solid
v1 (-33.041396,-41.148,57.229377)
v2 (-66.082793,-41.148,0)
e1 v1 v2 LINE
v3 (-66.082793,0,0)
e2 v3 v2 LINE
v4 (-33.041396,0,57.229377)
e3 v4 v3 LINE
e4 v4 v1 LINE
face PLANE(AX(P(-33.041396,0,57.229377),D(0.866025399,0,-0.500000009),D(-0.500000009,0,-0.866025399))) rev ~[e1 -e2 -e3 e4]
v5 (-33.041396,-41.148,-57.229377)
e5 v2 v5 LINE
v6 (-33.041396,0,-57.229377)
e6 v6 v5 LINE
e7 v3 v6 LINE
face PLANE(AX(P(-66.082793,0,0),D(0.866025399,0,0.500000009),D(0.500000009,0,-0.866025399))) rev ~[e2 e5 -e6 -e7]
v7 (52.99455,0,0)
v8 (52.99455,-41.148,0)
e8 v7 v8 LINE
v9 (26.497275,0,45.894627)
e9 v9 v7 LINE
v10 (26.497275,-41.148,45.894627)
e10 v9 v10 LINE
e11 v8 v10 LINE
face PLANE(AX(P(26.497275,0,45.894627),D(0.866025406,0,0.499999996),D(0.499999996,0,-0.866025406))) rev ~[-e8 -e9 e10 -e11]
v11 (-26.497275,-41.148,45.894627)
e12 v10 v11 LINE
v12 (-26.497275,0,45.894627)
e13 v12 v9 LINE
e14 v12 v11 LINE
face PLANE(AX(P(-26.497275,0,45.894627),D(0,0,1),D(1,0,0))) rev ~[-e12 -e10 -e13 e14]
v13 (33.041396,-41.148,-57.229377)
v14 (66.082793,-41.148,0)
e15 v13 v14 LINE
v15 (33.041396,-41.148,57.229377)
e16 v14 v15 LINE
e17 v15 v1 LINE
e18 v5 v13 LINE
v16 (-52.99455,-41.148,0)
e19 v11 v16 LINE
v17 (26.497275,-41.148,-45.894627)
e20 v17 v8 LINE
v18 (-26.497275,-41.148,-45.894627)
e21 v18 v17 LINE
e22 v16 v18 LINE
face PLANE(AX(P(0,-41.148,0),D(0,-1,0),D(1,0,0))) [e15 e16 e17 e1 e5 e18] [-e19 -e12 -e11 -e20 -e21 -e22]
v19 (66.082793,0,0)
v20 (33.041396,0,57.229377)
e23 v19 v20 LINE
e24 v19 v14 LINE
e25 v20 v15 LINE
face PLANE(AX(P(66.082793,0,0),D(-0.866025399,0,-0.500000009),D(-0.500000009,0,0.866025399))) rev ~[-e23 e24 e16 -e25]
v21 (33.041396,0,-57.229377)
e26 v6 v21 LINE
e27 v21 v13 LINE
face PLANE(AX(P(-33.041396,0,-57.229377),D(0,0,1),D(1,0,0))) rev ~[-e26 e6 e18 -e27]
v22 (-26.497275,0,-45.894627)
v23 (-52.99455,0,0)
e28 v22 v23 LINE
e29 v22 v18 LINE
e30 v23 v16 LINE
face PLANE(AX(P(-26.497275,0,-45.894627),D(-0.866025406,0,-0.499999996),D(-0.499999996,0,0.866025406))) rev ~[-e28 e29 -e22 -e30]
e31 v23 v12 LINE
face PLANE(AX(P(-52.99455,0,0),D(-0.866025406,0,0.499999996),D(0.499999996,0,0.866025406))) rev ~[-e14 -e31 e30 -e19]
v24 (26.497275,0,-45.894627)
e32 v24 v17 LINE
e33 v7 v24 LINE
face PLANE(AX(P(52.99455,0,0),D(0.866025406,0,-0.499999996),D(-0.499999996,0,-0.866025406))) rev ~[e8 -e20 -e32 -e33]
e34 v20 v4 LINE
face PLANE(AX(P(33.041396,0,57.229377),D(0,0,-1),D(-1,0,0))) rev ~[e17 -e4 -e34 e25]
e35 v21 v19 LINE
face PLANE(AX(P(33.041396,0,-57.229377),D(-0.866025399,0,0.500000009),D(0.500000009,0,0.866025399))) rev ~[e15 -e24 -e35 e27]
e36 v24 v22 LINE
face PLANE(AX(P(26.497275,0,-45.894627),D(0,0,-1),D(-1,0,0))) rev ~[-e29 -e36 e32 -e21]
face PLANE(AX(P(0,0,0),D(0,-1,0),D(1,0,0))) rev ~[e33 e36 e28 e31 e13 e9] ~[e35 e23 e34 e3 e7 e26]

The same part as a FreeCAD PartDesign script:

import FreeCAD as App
import Part
import Sketcher
Q = App.Units.Quantity

doc = App.newDocument("Part")
body = doc.addObject("PartDesign::Body", "Body")

# Sketch on XZ plane
sketch1 = body.newObject("Sketcher::SketchObject", "Sketch")
sketch1.AttachmentSupport = (doc.getObject("XZ_Plane"), [""])
sketch1.MapMode = "FlatFace"
sketch1.addGeometry(Part.LineSegment(App.Vector(33, 57, 0), App.Vector(-33, 57, 0)), False)
sketch1.addGeometry(Part.LineSegment(App.Vector(-33, 57, 0), App.Vector(-66, 0, 0)), False)
sketch1.addGeometry(Part.LineSegment(App.Vector(-66, 0, 0), App.Vector(-33, -57, 0)), False)
sketch1.addGeometry(Part.LineSegment(App.Vector(-33, -57, 0), App.Vector(33, -57, 0)), False)
sketch1.addGeometry(Part.LineSegment(App.Vector(33, -57, 0), App.Vector(66, 0, 0)), False)
sketch1.addGeometry(Part.LineSegment(App.Vector(66, 0, 0), App.Vector(33, 57, 0)), False)
sketch1.addConstraint(Sketcher.Constraint("Coincident", 0, 2, 1, 1))
sketch1.addConstraint(Sketcher.Constraint("Coincident", 1, 2, 2, 1))
sketch1.addConstraint(Sketcher.Constraint("Coincident", 2, 2, 3, 1))
sketch1.addConstraint(Sketcher.Constraint("Coincident", 3, 2, 4, 1))
sketch1.addConstraint(Sketcher.Constraint("Coincident", 4, 2, 5, 1))
sketch1.addConstraint(Sketcher.Constraint("Coincident", 5, 2, 0, 1))
sketch1.addConstraint(Sketcher.Constraint("Horizontal", 0))
sketch1.addConstraint(Sketcher.Constraint("Horizontal", 3))
sketch1.addConstraint(Sketcher.Constraint("Symmetric", 0, 2, 3, 2, -1, 1))
sketch1.addConstraint(Sketcher.Constraint("Symmetric", 1, 2, 4, 2, -1, 1))
sketch1.addConstraint(Sketcher.Constraint("PointOnObject", 1, 2, -1))
sketch1.addConstraint(Sketcher.Constraint("Parallel", 2, 5))
sketch1.addConstraint(Sketcher.Constraint("Vertical", 0, 2, 2, 2))
sketch1.addConstraint(Sketcher.Constraint("Angle", 1, Q("-120.000001 deg")))
sketch1.addConstraint(Sketcher.Constraint("DistanceX", 0, 2, 0, 1, Q("66.082792 mm")))
sketch1.addConstraint(Sketcher.Constraint("DistanceX", 1, 2, 3, 2, Q("99.124189 mm")))
pad1 = body.newObject("PartDesign::Pad", "Pad")
pad1.Profile = sketch1
pad1.Length = Q("1.62 in")

# Sketch on XZ plane
sketch2 = body.newObject("Sketcher::SketchObject", "Sketch001")
sketch2.AttachmentSupport = (doc.getObject("XZ_Plane"), [""])
sketch2.MapMode = "FlatFace"
sketch2.addGeometry(Part.LineSegment(App.Vector(-26, 46, 0), App.Vector(26, 46, 0)), False)
sketch2.addGeometry(Part.LineSegment(App.Vector(26, 46, 0), App.Vector(53, 0, 0)), False)
sketch2.addGeometry(Part.LineSegment(App.Vector(53, 0, 0), App.Vector(26, -46, 0)), False)
sketch2.addGeometry(Part.LineSegment(App.Vector(26, -46, 0), App.Vector(-26, -46, 0)), False)
sketch2.addGeometry(Part.LineSegment(App.Vector(-26, -46, 0), App.Vector(-53, 0, 0)), False)
sketch2.addGeometry(Part.LineSegment(App.Vector(-53, 0, 0), App.Vector(-26, 46, 0)), False)
sketch2.addConstraint(Sketcher.Constraint("Coincident", 0, 2, 1, 1))
sketch2.addConstraint(Sketcher.Constraint("Coincident", 1, 2, 2, 1))
sketch2.addConstraint(Sketcher.Constraint("Coincident", 2, 2, 3, 1))
sketch2.addConstraint(Sketcher.Constraint("Coincident", 3, 2, 4, 1))
sketch2.addConstraint(Sketcher.Constraint("Coincident", 4, 2, 5, 1))
sketch2.addConstraint(Sketcher.Constraint("Coincident", 5, 2, 0, 1))
sketch2.addConstraint(Sketcher.Constraint("Horizontal", 0))
sketch2.addConstraint(Sketcher.Constraint("Horizontal", 3))
sketch2.addConstraint(Sketcher.Constraint("Symmetric", 0, 2, 3, 2, -1, 1))
sketch2.addConstraint(Sketcher.Constraint("Symmetric", 1, 2, 4, 2, -1, 1))
sketch2.addConstraint(Sketcher.Constraint("PointOnObject", 1, 2, -1))
sketch2.addConstraint(Sketcher.Constraint("Parallel", 2, 5))
sketch2.addConstraint(Sketcher.Constraint("Vertical", 0, 2, 2, 2))
sketch2.addConstraint(Sketcher.Constraint("Angle", 1, Q("-60 deg")))
sketch2.addConstraint(Sketcher.Constraint("DistanceX", -1, 1, 0, 2, Q("1.0431998 in")))
sketch2.addConstraint(Sketcher.Constraint("DistanceX", 0, 2, 1, 2, Q("1.0431998 in")))
pocket1 = body.newObject("PartDesign::Pocket", "Pocket")
pocket1.Profile = sketch2
pocket1.Length = Q("6.57 in")
pocket1.Reversed = True

doc.recompute()
